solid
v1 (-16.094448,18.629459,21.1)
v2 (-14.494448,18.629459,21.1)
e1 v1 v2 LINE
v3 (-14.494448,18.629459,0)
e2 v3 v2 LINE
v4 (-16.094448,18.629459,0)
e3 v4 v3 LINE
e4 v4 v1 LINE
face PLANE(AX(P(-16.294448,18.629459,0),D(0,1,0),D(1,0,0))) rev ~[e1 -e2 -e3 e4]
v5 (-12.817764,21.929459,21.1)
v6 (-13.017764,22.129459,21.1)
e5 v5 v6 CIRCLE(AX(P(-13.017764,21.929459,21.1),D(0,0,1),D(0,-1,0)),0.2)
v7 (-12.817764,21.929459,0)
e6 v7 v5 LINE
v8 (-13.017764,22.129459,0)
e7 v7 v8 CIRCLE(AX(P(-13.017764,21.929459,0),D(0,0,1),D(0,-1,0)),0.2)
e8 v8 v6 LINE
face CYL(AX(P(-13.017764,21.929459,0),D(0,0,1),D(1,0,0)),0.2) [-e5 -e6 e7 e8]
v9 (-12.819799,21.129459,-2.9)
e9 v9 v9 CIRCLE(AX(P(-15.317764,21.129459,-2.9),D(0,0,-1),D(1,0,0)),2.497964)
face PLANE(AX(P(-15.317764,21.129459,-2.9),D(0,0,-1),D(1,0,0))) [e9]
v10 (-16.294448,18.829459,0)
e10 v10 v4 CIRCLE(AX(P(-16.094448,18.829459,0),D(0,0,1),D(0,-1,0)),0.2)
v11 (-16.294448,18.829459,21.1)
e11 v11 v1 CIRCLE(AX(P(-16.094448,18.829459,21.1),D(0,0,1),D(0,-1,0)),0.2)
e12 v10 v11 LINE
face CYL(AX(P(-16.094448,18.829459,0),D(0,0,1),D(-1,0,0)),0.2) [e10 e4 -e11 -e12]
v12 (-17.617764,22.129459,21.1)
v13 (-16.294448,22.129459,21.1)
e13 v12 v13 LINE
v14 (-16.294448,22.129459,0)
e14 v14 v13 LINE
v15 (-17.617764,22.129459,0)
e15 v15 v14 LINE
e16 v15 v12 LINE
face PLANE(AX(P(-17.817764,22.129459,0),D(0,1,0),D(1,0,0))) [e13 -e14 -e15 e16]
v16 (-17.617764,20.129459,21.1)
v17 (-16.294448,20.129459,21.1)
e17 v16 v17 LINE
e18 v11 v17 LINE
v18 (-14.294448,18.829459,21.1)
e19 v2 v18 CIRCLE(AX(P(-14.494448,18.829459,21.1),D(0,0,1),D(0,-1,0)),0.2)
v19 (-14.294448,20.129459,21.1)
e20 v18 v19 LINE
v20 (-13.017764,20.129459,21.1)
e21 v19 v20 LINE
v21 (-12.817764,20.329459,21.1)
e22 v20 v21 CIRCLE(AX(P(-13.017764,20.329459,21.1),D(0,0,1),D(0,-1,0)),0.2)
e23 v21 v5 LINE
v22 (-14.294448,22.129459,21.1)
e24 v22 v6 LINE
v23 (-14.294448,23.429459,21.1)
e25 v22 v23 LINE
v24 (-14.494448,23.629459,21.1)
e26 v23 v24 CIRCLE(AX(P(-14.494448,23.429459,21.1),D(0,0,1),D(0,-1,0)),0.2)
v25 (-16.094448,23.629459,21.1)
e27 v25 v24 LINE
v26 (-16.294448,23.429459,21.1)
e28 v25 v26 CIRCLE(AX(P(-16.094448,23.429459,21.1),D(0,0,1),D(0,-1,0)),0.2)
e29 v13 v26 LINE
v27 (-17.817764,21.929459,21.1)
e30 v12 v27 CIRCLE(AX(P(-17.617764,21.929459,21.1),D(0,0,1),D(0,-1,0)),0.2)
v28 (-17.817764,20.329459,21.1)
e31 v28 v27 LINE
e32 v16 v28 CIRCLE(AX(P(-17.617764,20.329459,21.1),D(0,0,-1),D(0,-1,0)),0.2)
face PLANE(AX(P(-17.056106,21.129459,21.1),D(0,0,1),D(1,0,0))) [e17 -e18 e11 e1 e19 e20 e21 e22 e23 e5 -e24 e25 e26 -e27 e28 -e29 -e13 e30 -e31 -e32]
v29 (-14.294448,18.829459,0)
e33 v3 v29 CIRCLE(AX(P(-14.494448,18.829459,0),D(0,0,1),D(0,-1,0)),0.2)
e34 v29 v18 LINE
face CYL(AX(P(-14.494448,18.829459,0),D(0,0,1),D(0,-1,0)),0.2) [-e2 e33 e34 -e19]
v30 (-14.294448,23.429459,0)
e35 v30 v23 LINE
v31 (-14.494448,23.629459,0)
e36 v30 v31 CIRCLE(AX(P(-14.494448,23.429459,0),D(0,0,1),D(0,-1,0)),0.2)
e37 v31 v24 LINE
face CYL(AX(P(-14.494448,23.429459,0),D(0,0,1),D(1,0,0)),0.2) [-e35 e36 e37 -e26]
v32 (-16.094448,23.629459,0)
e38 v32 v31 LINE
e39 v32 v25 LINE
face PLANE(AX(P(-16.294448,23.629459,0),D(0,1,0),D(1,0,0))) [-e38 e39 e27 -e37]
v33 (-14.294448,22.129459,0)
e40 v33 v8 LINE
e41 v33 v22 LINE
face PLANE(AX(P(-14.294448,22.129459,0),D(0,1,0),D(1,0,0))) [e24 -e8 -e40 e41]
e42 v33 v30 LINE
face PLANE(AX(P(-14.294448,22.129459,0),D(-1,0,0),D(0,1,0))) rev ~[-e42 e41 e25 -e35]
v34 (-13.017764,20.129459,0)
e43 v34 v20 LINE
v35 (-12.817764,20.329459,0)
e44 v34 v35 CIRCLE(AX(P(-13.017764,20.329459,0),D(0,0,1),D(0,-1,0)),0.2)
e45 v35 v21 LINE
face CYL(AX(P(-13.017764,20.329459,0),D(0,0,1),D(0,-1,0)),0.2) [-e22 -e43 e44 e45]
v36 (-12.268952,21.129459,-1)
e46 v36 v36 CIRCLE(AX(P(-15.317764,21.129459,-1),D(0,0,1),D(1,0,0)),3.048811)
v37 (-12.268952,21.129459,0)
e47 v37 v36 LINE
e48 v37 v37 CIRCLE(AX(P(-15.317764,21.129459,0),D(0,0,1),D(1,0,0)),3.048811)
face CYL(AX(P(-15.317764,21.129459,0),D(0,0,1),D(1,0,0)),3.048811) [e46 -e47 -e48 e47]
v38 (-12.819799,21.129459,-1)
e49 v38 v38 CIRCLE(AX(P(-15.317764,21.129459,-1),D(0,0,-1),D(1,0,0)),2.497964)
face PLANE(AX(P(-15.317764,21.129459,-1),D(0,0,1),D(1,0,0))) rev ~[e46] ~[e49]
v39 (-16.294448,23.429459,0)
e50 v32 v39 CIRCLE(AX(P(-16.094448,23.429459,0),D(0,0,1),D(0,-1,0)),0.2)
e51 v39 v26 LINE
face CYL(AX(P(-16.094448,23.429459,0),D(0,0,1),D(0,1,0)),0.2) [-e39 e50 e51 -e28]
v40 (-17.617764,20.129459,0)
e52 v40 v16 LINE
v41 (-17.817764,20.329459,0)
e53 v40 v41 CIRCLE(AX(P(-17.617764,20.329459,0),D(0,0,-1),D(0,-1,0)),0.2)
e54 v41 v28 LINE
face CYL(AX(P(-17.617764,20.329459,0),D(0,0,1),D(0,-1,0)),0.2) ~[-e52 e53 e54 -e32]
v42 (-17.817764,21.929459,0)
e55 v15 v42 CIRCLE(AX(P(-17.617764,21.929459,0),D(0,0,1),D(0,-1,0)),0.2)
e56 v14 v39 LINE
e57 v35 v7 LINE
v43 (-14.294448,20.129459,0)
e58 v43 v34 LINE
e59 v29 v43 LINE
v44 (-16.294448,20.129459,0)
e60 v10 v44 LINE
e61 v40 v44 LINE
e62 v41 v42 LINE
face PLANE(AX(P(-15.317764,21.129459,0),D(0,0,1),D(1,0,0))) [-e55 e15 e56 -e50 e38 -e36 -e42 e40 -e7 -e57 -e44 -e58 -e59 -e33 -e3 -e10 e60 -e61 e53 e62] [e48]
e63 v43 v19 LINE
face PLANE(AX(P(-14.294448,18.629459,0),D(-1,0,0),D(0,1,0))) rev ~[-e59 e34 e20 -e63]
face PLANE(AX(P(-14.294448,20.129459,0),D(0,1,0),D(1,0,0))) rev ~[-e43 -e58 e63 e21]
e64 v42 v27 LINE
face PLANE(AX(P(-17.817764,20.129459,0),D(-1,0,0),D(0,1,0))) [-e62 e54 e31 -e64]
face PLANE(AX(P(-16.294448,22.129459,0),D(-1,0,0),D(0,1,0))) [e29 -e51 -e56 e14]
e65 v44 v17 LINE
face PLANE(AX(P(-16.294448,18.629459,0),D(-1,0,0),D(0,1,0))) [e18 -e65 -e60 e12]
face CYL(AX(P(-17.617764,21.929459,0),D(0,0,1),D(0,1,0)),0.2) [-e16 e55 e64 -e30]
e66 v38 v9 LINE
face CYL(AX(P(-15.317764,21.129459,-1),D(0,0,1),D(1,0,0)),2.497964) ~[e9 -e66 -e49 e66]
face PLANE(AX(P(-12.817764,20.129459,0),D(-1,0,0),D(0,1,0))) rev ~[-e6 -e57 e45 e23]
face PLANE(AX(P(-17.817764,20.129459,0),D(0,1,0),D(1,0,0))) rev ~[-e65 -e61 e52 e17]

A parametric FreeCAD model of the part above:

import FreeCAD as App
import Part
import Sketcher
Q = App.Units.Quantity


def edges_at(feature, points):
    """Names of the edges that pass closest to the given points."""
    edges = feature.Shape.Edges
    near = lambda p: min(range(len(edges)), key=lambda i: edges[i].distToShape(Part.Vertex(*p))[0])
    return sorted({f"Edge{near(p) + 1}" for p in points})


def add_polygon(sketch, points):
    """Adds a closed chain of lines whose ends are joined by coincident constraints."""
    first, n = sketch.GeometryCount, len(points)
    for a, b in zip(points, points[1:] + points[:1]):
        sketch.addGeometry(Part.LineSegment(App.Vector(*a, 0), App.Vector(*b, 0)), False)
    for i in range(n):
        sketch.addConstraint(Sketcher.Constraint("Coincident", first + i, 2, first + (i + 1) % n, 1))

doc = App.newDocument("Part")
body = doc.addObject("PartDesign::Body", "Body")

sketch1 = doc.addObject("Sketcher::SketchObject", "Sketch")
body.addObject(sketch1)
sketch1.AttachmentSupport = (doc.XY_Plane, [""])
sketch1.MapMode = "FlatFace"
add_polygon(sketch1, [(-17.8, 22.1), (-17.8, 20.1), (-16.3, 20.1), (-16.3, 18.6), (-14.3, 18.6), (-14.3, 20.1), (-12.8, 20.1), (-12.8, 22.1), (-14.3, 22.1), (-14.3, 23.6), (-16.3, 23.6), (-16.3, 22.1)])
sketch1.addConstraint([
    Sketcher.Constraint("Vertical", 0),
    Sketcher.Constraint("Horizontal", 1),
    Sketcher.Constraint("Vertical", 2),
    Sketcher.Constraint("Horizontal", 3),
    Sketcher.Constraint("Vertical", 4),
    Sketcher.Constraint("Horizontal", 5),
    Sketcher.Constraint("Vertical", 6),
    Sketcher.Constraint("Horizontal", 7),
    Sketcher.Constraint("Vertical", 8),
    Sketcher.Constraint("Horizontal", 9),
    Sketcher.Constraint("Vertical", 10),
    Sketcher.Constraint("Horizontal", 11),
    Sketcher.Constraint("Horizontal", 1, 2, 4, 2),
    Sketcher.Constraint("Horizontal", 7, 2, 10, 2),
    Sketcher.Constraint("Vertical", 4, 2, 7, 2),
    Sketcher.Constraint("Vertical", 2, 2, 9, 2),
    Sketcher.Constraint("Equal", 9, 0),
    Sketcher.Constraint("Equal", 4, 8),
    Sketcher.Constraint("DistanceX", 3, 1, 3, 2, Q("2 mm")),
    Sketcher.Constraint("DistanceY", 2, 2, 2, 1, Q("1.5 mm")),
    Sketcher.Constraint("DistanceX", 0, 2, 5, 2, Q("5 mm")),
    Sketcher.Constraint("DistanceX", 1, 1, 1, 2, Q("1.523316 mm")),
    Sketcher.Constraint("DistanceY", -1, 1, 0, 2, Q("20.129459 mm")),
    Sketcher.Constraint("DistanceX", 0, 2, -1, 1, Q("17.817764 mm")),
])
pad1 = doc.addObject("PartDesign::Pad", "Pad")
body.addObject(pad1)
pad1.Profile = sketch1
pad1.Length = 21.1

sketch2 = doc.addObject("Sketcher::SketchObject", "Sketch001")
body.addObject(sketch2)
sketch2.AttachmentSupport = (doc.XY_Plane, [""])
sketch2.MapMode = "FlatFace"
sketch2.addGeometry(Part.Circle(App.Vector(-15.3, 21.1, 0), App.Vector(0, 0, 1), 3), False)
sketch2.addConstraint([
    Sketcher.Constraint("Diameter", 0, Q("6.097623 mm")),
    Sketcher.Constraint("DistanceY", -1, 1, 0, 3, Q("21.129459 mm")),
    Sketcher.Constraint("DistanceX", 0, 3, -1, 1, Q("15.317764 mm")),
])
pad2 = doc.addObject("PartDesign::Pad", "Pad001")
body.addObject(pad2)
pad2.Profile = sketch2
pad2.Length = 1
pad2.Reversed = True

sketch3 = doc.addObject("Sketcher::SketchObject", "Sketch002")
body.addObject(sketch3)
sketch3.AttachmentSupport = (doc.XY_Plane, [""])
sketch3.MapMode = "FlatFace"
sketch3.AttachmentOffset = App.Placement(App.Vector(0, 0, -1), App.Rotation())
sketch3.addGeometry(Part.Circle(App.Vector(-15.3, 21.1, 0), App.Vector(0, 0, 1), 2.5), False)
sketch3.addConstraint([
    Sketcher.Constraint("Diameter", 0, Q("4.995929 mm")),
    Sketcher.Constraint("DistanceY", -1, 1, 0, 3, Q("21.129459 mm")),
    Sketcher.Constraint("DistanceX", 0, 3, -1, 1, Q("15.317764 mm")),
])
pad3 = doc.addObject("PartDesign::Pad", "Pad002")
body.addObject(pad3)
pad3.Profile = sketch3
pad3.Length = 1.9
pad3.Reversed = True
doc.recompute()

fillet = doc.addObject("PartDesign::Fillet", "Fillet")
body.addObject(fillet)
fillet.Base = (pad3, edges_at(pad3, [
    (-12.818, 20.129, 10.55),
    (-12.818, 22.129, 10.55),
    (-14.294, 18.629, 10.55),
    (-16.294, 18.629, 10.55),
    (-17.818, 20.129, 10.55),
    (-17.818, 22.129, 10.55),
    (-16.294, 23.629, 10.55),
    (-14.294, 23.629, 10.55),
]))
fillet.Radius = 0.2

doc.recompute()
